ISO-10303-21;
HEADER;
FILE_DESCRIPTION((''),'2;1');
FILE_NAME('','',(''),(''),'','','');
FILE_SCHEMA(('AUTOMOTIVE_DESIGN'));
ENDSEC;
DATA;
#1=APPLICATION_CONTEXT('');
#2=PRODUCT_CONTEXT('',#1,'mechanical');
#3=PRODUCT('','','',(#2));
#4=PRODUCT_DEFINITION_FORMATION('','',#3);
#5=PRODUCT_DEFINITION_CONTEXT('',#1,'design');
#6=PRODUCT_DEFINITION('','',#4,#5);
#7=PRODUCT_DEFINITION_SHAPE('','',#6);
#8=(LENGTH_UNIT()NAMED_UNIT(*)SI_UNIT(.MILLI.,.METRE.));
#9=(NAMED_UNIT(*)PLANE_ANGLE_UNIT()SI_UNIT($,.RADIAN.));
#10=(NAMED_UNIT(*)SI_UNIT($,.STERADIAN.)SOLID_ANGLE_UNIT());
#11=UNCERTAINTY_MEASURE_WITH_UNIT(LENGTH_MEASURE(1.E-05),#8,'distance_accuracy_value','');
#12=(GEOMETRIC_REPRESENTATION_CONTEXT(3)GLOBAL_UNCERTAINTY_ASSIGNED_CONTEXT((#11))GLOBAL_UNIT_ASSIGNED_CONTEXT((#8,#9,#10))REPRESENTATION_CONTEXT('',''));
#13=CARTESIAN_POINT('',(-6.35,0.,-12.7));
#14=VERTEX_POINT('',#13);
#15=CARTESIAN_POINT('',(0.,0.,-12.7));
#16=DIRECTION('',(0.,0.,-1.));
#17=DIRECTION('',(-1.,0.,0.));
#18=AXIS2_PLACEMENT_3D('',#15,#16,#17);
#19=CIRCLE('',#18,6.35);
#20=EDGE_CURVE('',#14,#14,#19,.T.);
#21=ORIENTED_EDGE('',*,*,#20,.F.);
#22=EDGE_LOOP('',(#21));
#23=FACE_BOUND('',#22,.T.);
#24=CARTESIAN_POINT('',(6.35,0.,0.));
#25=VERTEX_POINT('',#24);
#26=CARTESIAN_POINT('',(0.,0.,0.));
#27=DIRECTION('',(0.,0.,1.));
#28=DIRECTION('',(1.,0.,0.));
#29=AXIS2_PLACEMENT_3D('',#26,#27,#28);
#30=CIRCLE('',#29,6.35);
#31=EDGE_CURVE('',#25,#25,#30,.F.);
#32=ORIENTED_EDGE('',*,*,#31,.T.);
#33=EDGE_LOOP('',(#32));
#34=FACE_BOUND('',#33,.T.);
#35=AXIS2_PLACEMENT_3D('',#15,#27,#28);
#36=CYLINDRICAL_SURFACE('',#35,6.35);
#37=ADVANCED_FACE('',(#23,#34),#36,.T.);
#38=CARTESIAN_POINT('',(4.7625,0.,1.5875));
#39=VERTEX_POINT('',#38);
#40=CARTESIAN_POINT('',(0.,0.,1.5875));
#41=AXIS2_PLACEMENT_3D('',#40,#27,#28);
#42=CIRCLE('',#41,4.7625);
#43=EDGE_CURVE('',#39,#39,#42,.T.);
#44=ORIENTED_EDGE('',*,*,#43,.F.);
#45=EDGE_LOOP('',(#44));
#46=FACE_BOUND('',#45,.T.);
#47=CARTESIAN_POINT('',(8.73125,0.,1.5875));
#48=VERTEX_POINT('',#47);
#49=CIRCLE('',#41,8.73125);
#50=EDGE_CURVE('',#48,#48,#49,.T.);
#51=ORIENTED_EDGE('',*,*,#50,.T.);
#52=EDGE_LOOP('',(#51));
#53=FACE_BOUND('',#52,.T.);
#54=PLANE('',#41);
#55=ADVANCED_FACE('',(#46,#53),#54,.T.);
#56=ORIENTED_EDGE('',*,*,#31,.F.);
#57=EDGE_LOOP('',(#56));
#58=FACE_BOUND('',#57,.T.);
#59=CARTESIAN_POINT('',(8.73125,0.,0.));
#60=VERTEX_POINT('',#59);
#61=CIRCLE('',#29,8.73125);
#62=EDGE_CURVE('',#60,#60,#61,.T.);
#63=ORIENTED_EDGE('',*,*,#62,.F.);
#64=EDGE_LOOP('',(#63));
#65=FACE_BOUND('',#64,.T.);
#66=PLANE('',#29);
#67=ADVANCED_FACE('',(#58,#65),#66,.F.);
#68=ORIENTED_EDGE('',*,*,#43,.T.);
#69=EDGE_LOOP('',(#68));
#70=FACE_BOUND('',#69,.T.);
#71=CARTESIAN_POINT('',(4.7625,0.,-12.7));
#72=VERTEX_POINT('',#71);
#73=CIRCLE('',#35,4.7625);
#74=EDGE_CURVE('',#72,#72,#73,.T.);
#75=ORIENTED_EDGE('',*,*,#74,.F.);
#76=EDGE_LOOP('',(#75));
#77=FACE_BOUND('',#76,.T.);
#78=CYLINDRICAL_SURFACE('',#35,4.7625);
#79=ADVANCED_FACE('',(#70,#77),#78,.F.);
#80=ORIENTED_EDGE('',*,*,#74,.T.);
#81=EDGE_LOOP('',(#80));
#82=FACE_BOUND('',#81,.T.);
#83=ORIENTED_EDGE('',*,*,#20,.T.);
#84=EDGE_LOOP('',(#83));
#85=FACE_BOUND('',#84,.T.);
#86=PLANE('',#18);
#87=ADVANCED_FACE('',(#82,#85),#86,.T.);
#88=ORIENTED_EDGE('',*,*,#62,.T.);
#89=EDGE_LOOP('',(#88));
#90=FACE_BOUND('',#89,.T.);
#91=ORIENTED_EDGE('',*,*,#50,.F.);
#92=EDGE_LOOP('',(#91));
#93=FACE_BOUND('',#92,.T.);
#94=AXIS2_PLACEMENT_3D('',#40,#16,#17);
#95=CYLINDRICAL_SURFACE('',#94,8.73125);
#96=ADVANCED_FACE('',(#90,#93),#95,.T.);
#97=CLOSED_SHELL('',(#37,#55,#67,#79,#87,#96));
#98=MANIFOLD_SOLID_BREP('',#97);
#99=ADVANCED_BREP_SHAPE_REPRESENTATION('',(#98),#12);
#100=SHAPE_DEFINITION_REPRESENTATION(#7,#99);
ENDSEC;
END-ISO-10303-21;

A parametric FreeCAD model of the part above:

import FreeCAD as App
import Part
import Sketcher
Q = App.Units.Quantity

doc = App.newDocument("Part")
params = doc.addObject("Spreadsheet::Sheet", "Params")
for row, (alias, value) in enumerate([
    ("sketch1_diameter", "0.6875 in"),
    ("pad1_length", "0.0625 in"),
    ("sketch2_diameter", "0.5 in"),
    ("pad2_length", "0.5 in"),
    ("sketch3_diameter", "0.375 in"),
], start=1):
    params.set(f"A{row}", alias)
    params.set(f"B{row}", "=" + value)
    params.setAlias(f"B{row}", alias)

body = doc.addObject("PartDesign::Body", "Body")

sketch1 = doc.addObject("Sketcher::SketchObject", "Sketch")
body.addObject(sketch1)
sketch1.AttachmentSupport = (doc.XY_Plane, [""])
sketch1.MapMode = "FlatFace"
sketch1.addGeometry(Part.Circle(App.Vector(0, 0, 0), App.Vector(0, 0, 1), 8.73125), False)
sketch1.addConstraint(Sketcher.Constraint("Coincident", 0, 3, -1, 1))
sketch1.addConstraint(Sketcher.Constraint("Diameter", 0, Q("0.6875 in")))
sketch1.setExpression("Constraints[1]", "Params.sketch1_diameter")
pad1 = doc.addObject("PartDesign::Pad", "Pad")
body.addObject(pad1)
pad1.Profile = sketch1
pad1.setExpression("Length", "Params.pad1_length")

sketch2 = doc.addObject("Sketcher::SketchObject", "Sketch001")
body.addObject(sketch2)
sketch2.AttachmentSupport = (doc.XY_Plane, [""])
sketch2.MapMode = "FlatFace"
sketch2.addGeometry(Part.Circle(App.Vector(0, 0, 0), App.Vector(0, 0, 1), 6.35), False)
sketch2.addConstraint(Sketcher.Constraint("Coincident", 0, 3, -1, 1))
sketch2.addConstraint(Sketcher.Constraint("Diameter", 0, Q("0.5 in")))
sketch2.setExpression("Constraints[1]", "Params.sketch2_diameter")
pad2 = doc.addObject("PartDesign::Pad", "Pad001")
body.addObject(pad2)
pad2.Profile = sketch2
pad2.setExpression("Length", "Params.pad2_length")
pad2.Reversed = True

sketch3 = doc.addObject("Sketcher::SketchObject", "Sketch002")
body.addObject(sketch3)
sketch3.AttachmentSupport = (doc.XY_Plane, [""])
sketch3.MapMode = "FlatFace"
sketch3.AttachmentOffset = App.Placement(App.Vector(0, 0, 0.0625 * 25.4), App.Rotation())
sketch3.addGeometry(Part.Circle(App.Vector(0, 0, 0), App.Vector(0, 0, 1), 4.7625), False)
sketch3.addConstraint(Sketcher.Constraint("Coincident", 0, 3, -1, 1))
sketch3.addConstraint(Sketcher.Constraint("Diameter", 0, Q("0.375 in")))
sketch3.setExpression("Constraints[1]", "Params.sketch3_diameter")
pocket1 = doc.addObject("PartDesign::Pocket", "Pocket")
body.addObject(pocket1)
pocket1.Profile = sketch3
pocket1.Type = "ThroughAll"

doc.recompute()
